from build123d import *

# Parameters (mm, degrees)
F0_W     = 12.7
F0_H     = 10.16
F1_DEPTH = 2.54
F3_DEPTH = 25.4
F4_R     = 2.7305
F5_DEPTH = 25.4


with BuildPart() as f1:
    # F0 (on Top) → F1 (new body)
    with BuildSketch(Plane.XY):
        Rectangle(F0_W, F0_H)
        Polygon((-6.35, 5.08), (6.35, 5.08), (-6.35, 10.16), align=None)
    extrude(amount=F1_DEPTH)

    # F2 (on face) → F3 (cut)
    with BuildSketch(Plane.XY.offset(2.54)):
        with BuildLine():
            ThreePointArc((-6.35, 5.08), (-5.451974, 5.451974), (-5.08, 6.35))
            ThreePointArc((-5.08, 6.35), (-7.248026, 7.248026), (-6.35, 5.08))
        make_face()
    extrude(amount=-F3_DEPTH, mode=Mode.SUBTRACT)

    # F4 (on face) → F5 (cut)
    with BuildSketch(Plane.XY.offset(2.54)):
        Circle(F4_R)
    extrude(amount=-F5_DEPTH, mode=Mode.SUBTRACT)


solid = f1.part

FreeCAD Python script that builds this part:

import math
import FreeCAD as App
import Part
import Sketcher
Q = App.Units.Quantity


def add_polygon(sketch, points):
    """Adds a closed chain of lines whose ends are joined by coincident constraints."""
    first, n = sketch.GeometryCount, len(points)
    for a, b in zip(points, points[1:] + points[:1]):
        sketch.addGeometry(Part.LineSegment(App.Vector(*a, 0), App.Vector(*b, 0)), False)
    for i in range(n):
        sketch.addConstraint(Sketcher.Constraint("Coincident", first + i, 2, first + (i + 1) % n, 1))

doc = App.newDocument("Part")
body = doc.addObject("PartDesign::Body", "Body")

# Sketch on XY plane
sketch1 = doc.addObject("Sketcher::SketchObject", "Sketch")
body.addObject(sketch1)
sketch1.AttachmentSupport = (doc.XY_Plane, [""])
sketch1.MapMode = "FlatFace"
add_polygon(sketch1, [(-6, -5), (6, -5), (6, 5), (-6, 10)])  # lines 0-3
sketch1.addConstraint([
    Sketcher.Constraint("Horizontal", 0),
    Sketcher.Constraint("Vertical", 1),
    Sketcher.Constraint("Vertical", 3),
    Sketcher.Constraint("Symmetric", 1, 2, 3, 2, -1, 1),
    Sketcher.Constraint("DistanceX", 0, 1, 0, 2, Q("0.5 in")),
    Sketcher.Constraint("DistanceY", 1, 1, 1, 2, Q("0.4 in")),
    Sketcher.Constraint("DistanceY", 3, 2, 3, 1, Q("0.6 in")),
])
pad1 = doc.addObject("PartDesign::Pad", "Pad")
body.addObject(pad1)
pad1.Profile = sketch1
pad1.Length = Q("0.1 in")

# Sketch on XY plane
sketch2 = doc.addObject("Sketcher::SketchObject", "Sketch001")
body.addObject(sketch2)
sketch2.AttachmentSupport = (doc.XY_Plane, [""])
sketch2.MapMode = "FlatFace"
sketch2.AttachmentOffset = App.Placement(App.Vector(0, 0, 0.1 * 25.4), App.Rotation())
sketch2.addGeometry([
    Part.ArcOfCircle(Part.Circle(App.Vector(-6.3, 6.3, 0), App.Vector(0, 0, 1), 1.3), math.radians(-90), math.radians(0)),
    Part.ArcOfCircle(Part.Circle(App.Vector(-6.4, 6.4, 0), App.Vector(0, 0, 1), 1.3), math.radians(0), math.radians(270)),
], False)
sketch2.addConstraint([
    Sketcher.Constraint("Tangent", 0, 1, 1, 2),
    Sketcher.Constraint("Coincident", 1, 1, 0, 2),
    Sketcher.Constraint("Horizontal", 0, 3, 1, 1),
    Sketcher.Constraint("Vertical", 1, 3, 0, 1),
    Sketcher.Constraint("Radius", 0, Q("0.0499999 in")),
    Sketcher.Constraint("DistanceY", -1, 1, 0, 1, Q("0.2 in")),
    Sketcher.Constraint("DistanceX", 1, 1, -1, 1, Q("0.2 in")),
])
pocket1 = doc.addObject("PartDesign::Pocket", "Pocket")
body.addObject(pocket1)
pocket1.Profile = sketch2
pocket1.Length = Q("1 in")

# Sketch on XY plane
sketch3 = doc.addObject("Sketcher::SketchObject", "Sketch002")
body.addObject(sketch3)
sketch3.AttachmentSupport = (doc.XY_Plane, [""])
sketch3.MapMode = "FlatFace"
sketch3.AttachmentOffset = App.Placement(App.Vector(0, 0, 0.1 * 25.4), App.Rotation())
sketch3.addGeometry(Part.Circle(App.Vector(0, 0, 0), App.Vector(0, 0, 1), 2.7), False)
sketch3.addConstraint([
    Sketcher.Constraint("Coincident", 0, 3, -1, 1),
    Sketcher.Constraint("Diameter", 0, Q("0.215 in")),
])
pocket2 = doc.addObject("PartDesign::Pocket", "Pocket001")
body.addObject(pocket2)
pocket2.Profile = sketch3
pocket2.Length = Q("1 in")

doc.recompute()
